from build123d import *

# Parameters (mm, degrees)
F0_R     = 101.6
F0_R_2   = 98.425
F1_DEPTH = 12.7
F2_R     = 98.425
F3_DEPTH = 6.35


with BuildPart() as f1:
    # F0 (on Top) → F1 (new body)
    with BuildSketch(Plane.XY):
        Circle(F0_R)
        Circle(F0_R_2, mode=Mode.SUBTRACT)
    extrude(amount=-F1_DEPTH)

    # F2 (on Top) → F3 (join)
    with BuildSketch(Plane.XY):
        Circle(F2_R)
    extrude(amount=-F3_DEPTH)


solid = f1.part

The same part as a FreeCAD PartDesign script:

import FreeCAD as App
import Part
import Sketcher

V = App.Vector
Q = App.Units.Quantity

doc = App.newDocument("Part")
params = doc.addObject("Spreadsheet::Sheet", "Params")
for row, (alias, value) in enumerate([
    ("sketch1_diameter", "8 in"),
    ("sketch1_diameter2", "7.75 in"),
    ("pad1_length", "0.5 in"),
    ("sketch2_diameter", "7.75 in"),
    ("pad2_length", "0.25 in"),
], start=1):
    params.set(f"A{row}", alias)
    params.set(f"B{row}", "=" + value)
    params.setAlias(f"B{row}", alias)

body = doc.addObject("PartDesign::Body", "Body")

sketch1 = body.newObject("Sketcher::SketchObject", "Sketch")
sketch1.AttachmentSupport = (doc.getObject("XY_Plane"), [""])
sketch1.MapMode = "FlatFace"
sketch1.addGeometry([
    Part.Circle(V(0, 0, 0), V(0, 0, 1), 102),
    Part.Circle(V(0, 0, 0), V(0, 0, 1), 98),
], False)
sketch1.addConstraint([
    Sketcher.Constraint("Coincident", 0, 3, -1, 1),
    Sketcher.Constraint("Coincident", 1, 3, -1, 1),
    Sketcher.Constraint("Diameter", 0, Q("8 in")),
    Sketcher.Constraint("Diameter", 1, Q("7.75 in")),
])
sketch1.setExpression("Constraints[2]", "Params.sketch1_diameter")
sketch1.setExpression("Constraints[3]", "Params.sketch1_diameter2")
pad1 = body.newObject("PartDesign::Pad", "Pad")
pad1.Profile = sketch1
pad1.setExpression("Length", "Params.pad1_length")
pad1.Reversed = True

sketch2 = body.newObject("Sketcher::SketchObject", "Sketch001")
sketch2.AttachmentSupport = (doc.getObject("XY_Plane"), [""])
sketch2.MapMode = "FlatFace"
sketch2.addGeometry(Part.Circle(V(0, 0, 0), V(0, 0, 1), 98), False)
sketch2.addConstraint([
    Sketcher.Constraint("Coincident", 0, 3, -1, 1),
    Sketcher.Constraint("Diameter", 0, Q("7.75 in")),
])
sketch2.setExpression("Constraints[1]", "Params.sketch2_diameter")
pad2 = body.newObject("PartDesign::Pad", "Pad001")
pad2.Profile = sketch2
pad2.setExpression("Length", "Params.pad2_length")
pad2.Reversed = True

doc.recompute()
